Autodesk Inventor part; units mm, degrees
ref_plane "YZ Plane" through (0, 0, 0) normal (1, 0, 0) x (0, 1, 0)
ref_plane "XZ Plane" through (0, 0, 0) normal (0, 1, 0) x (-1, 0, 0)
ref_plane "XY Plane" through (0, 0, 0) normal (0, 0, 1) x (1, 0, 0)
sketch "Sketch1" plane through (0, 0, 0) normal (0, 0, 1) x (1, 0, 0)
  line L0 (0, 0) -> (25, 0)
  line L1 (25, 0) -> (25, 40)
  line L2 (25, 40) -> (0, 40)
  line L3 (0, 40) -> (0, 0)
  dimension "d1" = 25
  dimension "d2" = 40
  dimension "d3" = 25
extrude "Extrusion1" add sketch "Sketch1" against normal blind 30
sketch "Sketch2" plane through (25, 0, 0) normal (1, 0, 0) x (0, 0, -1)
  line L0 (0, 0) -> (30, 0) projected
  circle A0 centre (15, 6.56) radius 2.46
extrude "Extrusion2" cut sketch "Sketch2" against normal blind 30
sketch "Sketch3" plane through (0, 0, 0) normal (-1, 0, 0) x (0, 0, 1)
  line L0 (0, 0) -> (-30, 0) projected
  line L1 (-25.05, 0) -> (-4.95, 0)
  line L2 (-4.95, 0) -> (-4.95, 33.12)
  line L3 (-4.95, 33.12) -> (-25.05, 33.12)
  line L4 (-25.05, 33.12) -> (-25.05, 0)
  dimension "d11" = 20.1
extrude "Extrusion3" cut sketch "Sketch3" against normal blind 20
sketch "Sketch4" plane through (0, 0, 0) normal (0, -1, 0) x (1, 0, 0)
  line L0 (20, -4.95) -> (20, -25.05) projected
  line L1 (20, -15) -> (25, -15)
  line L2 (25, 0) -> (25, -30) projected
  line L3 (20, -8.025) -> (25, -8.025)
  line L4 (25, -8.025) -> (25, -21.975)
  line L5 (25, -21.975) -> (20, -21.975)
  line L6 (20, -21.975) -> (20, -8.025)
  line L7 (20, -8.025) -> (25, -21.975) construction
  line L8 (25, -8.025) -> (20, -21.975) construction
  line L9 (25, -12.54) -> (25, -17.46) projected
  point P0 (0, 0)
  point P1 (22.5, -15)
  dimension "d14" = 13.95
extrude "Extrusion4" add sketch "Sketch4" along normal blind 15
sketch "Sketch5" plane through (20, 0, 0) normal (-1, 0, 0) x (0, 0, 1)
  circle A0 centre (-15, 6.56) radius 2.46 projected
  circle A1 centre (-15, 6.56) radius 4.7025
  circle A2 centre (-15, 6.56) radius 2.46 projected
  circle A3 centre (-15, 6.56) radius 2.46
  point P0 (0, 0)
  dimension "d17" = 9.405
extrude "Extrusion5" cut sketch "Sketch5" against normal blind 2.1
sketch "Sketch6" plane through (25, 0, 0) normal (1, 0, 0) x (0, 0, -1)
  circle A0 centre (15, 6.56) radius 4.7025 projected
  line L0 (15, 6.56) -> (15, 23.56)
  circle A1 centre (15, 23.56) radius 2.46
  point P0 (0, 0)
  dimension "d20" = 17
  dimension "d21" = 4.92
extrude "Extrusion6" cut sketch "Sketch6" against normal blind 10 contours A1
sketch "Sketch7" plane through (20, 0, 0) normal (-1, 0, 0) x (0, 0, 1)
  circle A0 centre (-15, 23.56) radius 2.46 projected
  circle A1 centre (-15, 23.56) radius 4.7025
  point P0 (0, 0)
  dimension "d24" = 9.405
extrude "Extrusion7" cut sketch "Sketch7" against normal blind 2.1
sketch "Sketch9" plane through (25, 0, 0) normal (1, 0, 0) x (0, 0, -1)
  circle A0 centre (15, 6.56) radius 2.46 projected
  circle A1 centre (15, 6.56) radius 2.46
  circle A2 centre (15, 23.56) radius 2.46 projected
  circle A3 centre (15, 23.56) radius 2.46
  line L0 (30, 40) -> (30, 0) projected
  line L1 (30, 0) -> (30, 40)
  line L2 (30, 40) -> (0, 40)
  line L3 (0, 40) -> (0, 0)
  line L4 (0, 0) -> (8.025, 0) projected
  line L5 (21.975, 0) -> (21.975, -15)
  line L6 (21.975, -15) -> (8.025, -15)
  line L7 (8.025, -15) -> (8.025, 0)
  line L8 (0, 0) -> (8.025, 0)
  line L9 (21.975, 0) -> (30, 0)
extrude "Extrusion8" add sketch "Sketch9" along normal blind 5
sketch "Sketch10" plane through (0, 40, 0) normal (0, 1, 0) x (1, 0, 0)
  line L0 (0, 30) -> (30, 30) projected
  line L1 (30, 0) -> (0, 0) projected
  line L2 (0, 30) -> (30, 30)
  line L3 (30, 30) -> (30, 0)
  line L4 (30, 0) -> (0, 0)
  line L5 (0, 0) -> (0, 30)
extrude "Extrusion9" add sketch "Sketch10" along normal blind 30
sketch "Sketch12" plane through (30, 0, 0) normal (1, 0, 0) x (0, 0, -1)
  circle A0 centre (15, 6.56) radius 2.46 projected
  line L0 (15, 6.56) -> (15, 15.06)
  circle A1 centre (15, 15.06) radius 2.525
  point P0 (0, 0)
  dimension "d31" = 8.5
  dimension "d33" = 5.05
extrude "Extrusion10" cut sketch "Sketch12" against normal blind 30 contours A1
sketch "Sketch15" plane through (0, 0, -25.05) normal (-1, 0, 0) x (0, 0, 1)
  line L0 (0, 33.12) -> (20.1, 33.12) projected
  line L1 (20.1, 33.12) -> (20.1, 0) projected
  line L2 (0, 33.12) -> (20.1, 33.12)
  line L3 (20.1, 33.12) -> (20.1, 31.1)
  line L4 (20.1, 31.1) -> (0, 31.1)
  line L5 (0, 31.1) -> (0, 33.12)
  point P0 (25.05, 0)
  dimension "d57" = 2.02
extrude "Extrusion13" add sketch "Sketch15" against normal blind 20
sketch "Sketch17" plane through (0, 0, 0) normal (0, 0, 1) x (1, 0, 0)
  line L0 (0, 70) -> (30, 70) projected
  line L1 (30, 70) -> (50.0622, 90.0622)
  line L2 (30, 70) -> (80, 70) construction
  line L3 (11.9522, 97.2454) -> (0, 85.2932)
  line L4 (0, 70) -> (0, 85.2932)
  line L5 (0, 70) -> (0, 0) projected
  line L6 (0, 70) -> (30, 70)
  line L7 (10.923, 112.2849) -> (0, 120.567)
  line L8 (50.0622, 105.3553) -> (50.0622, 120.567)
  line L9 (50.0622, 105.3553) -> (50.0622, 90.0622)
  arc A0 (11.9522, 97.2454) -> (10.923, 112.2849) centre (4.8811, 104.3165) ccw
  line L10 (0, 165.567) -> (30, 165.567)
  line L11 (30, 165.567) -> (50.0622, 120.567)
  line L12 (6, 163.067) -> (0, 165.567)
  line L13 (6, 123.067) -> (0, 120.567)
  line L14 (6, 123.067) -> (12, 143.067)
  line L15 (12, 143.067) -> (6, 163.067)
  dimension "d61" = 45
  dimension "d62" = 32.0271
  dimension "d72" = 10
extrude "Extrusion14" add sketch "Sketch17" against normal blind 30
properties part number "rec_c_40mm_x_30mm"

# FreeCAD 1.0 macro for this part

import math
import FreeCAD as App
import Part
import Sketcher
Q = App.Units.Quantity


def add_polygon(sketch, points):
    """Adds a closed chain of lines whose ends are joined by coincident constraints."""
    first, n = sketch.GeometryCount, len(points)
    for a, b in zip(points, points[1:] + points[:1]):
        sketch.addGeometry(Part.LineSegment(App.Vector(*a, 0), App.Vector(*b, 0)), False)
    for i in range(n):
        sketch.addConstraint(Sketcher.Constraint("Coincident", first + i, 2, first + (i + 1) % n, 1))

doc = App.newDocument("Part")
body = doc.addObject("PartDesign::Body", "Body")

sketch1 = body.newObject("Sketcher::SketchObject", "Sketch")
sketch1.AttachmentSupport = (doc.getObject("XY_Plane"), [""])
sketch1.MapMode = "FlatFace"
add_polygon(sketch1, [(0, 40), (0, 0), (25, 0), (25, 40)])
sketch1.addConstraint([
    Sketcher.Constraint("Vertical", 0),
    Sketcher.Constraint("Horizontal", 1),
    Sketcher.Constraint("Vertical", 2),
    Sketcher.Constraint("Horizontal", 3),
    Sketcher.Constraint("Coincident", 0, 2, -1, 1),
    Sketcher.Constraint("DistanceX", 1, 1, 1, 2, Q("25 mm")),
    Sketcher.Constraint("DistanceY", 0, 2, 0, 1, Q("40 mm")),
])
pad1 = body.newObject("PartDesign::Pad", "Pad")
pad1.Profile = sketch1
pad1.Length = 30
pad1.Reversed = True

sketch2 = body.newObject("Sketcher::SketchObject", "Sketch001")
sketch2.AttachmentSupport = (doc.getObject("YZ_Plane"), [""])
sketch2.MapMode = "FlatFace"
sketch2.AttachmentOffset = App.Placement(App.Vector(0, 0, 25), App.Rotation())
sketch2.addGeometry(Part.Circle(App.Vector(6.56, -15, 0), App.Vector(0, 0, 1), 2.46), False)
sketch2.addConstraint([
    Sketcher.Constraint("Diameter", 0, Q("4.92 mm")),
    Sketcher.Constraint("DistanceY", 0, 3, -1, 1, Q("15 mm")),
    Sketcher.Constraint("DistanceX", -1, 1, 0, 3, Q("6.56 mm")),
])
pocket1 = body.newObject("PartDesign::Pocket", "Pocket")
pocket1.Profile = sketch2
pocket1.Length = 30

sketch3 = body.newObject("Sketcher::SketchObject", "Sketch002")
sketch3.AttachmentSupport = (doc.getObject("YZ_Plane"), [""])
sketch3.MapMode = "FlatFace"
add_polygon(sketch3, [(0, -25.05), (0, -4.95), (33.12, -4.95), (33.12, -25.05)])
sketch3.addConstraint([
    Sketcher.Constraint("Vertical", 0),
    Sketcher.Constraint("Horizontal", 1),
    Sketcher.Constraint("Vertical", 2),
    Sketcher.Constraint("Horizontal", 3),
    Sketcher.Constraint("PointOnObject", 0, 2, -2),
    Sketcher.Constraint("DistanceY", 0, 1, 0, 2, Q("20.1 mm")),
    Sketcher.Constraint("DistanceX", 1, 1, 1, 2, Q("33.12 mm")),
    Sketcher.Constraint("DistanceY", 0, 2, -1, 1, Q("4.95 mm")),
])
pocket2 = body.newObject("PartDesign::Pocket", "Pocket001")
pocket2.Profile = sketch3
pocket2.Length = 20
pocket2.Reversed = True

sketch4 = body.newObject("Sketcher::SketchObject", "Sketch003")
sketch4.AttachmentSupport = (doc.getObject("XZ_Plane"), [""])
sketch4.MapMode = "FlatFace"
add_polygon(sketch4, [(25, -8.025), (20, -8.025), (20, -21.975), (25, -21.975)])
sketch4.addConstraint([
    Sketcher.Constraint("Horizontal", 0),
    Sketcher.Constraint("Vertical", 1),
    Sketcher.Constraint("Horizontal", 2),
    Sketcher.Constraint("Vertical", 3),
    Sketcher.Constraint("DistanceY", 1, 2, 1, 1, Q("13.95 mm")),
    Sketcher.Constraint("DistanceX", 0, 2, 0, 1, Q("5 mm")),
    Sketcher.Constraint("DistanceX", -1, 1, 0, 2, Q("20 mm")),
    Sketcher.Constraint("DistanceY", 0, 2, -1, 1, Q("8.025 mm")),
])
pad2 = body.newObject("PartDesign::Pad", "Pad001")
pad2.Profile = sketch4
pad2.Length = 15

sketch5 = body.newObject("Sketcher::SketchObject", "Sketch004")
sketch5.AttachmentSupport = (doc.getObject("YZ_Plane"), [""])
sketch5.MapMode = "FlatFace"
sketch5.AttachmentOffset = App.Placement(App.Vector(0, 0, 20), App.Rotation())
sketch5.addGeometry([
    Part.Circle(App.Vector(6.56, -15, 0), App.Vector(0, 0, 1), 4.7025),
    Part.Circle(App.Vector(6.56, -15, 0), App.Vector(0, 0, 1), 2.46),
], False)
sketch5.addConstraint([
    Sketcher.Constraint("Coincident", 1, 3, 0, 3),
    Sketcher.Constraint("Diameter", 0, Q("9.405 mm")),
    Sketcher.Constraint("Diameter", 1, Q("4.92 mm")),
    Sketcher.Constraint("DistanceY", 0, 3, -1, 1, Q("15 mm")),
    Sketcher.Constraint("DistanceX", -1, 1, 0, 3, Q("6.56 mm")),
])
pocket3 = body.newObject("PartDesign::Pocket", "Pocket002")
pocket3.Profile = sketch5
pocket3.Length = 2.1
pocket3.Reversed = True

sketch6 = body.newObject("Sketcher::SketchObject", "Sketch005")
sketch6.AttachmentSupport = (doc.getObject("YZ_Plane"), [""])
sketch6.MapMode = "FlatFace"
sketch6.AttachmentOffset = App.Placement(App.Vector(0, 0, 25), App.Rotation())
sketch6.addGeometry(Part.Circle(App.Vector(23.56, -15, 0), App.Vector(0, 0, 1), 2.46), False)
sketch6.addConstraint([
    Sketcher.Constraint("Diameter", 0, Q("4.92 mm")),
    Sketcher.Constraint("DistanceY", 0, 3, -1, 1, Q("15 mm")),
    Sketcher.Constraint("DistanceX", -1, 1, 0, 3, Q("23.56 mm")),
])
pocket4 = body.newObject("PartDesign::Pocket", "Pocket003")
pocket4.Profile = sketch6
pocket4.Length = 10

sketch7 = body.newObject("Sketcher::SketchObject", "Sketch006")
sketch7.AttachmentSupport = (doc.getObject("YZ_Plane"), [""])
sketch7.MapMode = "FlatFace"
sketch7.AttachmentOffset = App.Placement(App.Vector(0, 0, 20), App.Rotation())
sketch7.addGeometry([
    Part.Circle(App.Vector(23.56, -15, 0), App.Vector(0, 0, 1), 4.7025),
    Part.Circle(App.Vector(23.56, -15, 0), App.Vector(0, 0, 1), 2.46),
], False)
sketch7.addConstraint([
    Sketcher.Constraint("Coincident", 1, 3, 0, 3),
    Sketcher.Constraint("Diameter", 0, Q("9.405 mm")),
    Sketcher.Constraint("Diameter", 1, Q("4.92 mm")),
    Sketcher.Constraint("DistanceY", 0, 3, -1, 1, Q("15 mm")),
    Sketcher.Constraint("DistanceX", -1, 1, 0, 3, Q("23.56 mm")),
])
pocket5 = body.newObject("PartDesign::Pocket", "Pocket004")
pocket5.Profile = sketch7
pocket5.Length = 2.1
pocket5.Reversed = True

sketch8 = body.newObject("Sketcher::SketchObject", "Sketch007")
sketch8.AttachmentSupport = (doc.getObject("YZ_Plane"), [""])
sketch8.MapMode = "FlatFace"
sketch8.AttachmentOffset = App.Placement(App.Vector(0, 0, 25), App.Rotation())
add_polygon(sketch8, [(0, -30), (40, -30), (40, 0), (0, 0), (0, -8.025), (-15, -8.025), (-15, -21.975), (0, -21.975)])
sketch8.addGeometry(Part.Circle(App.Vector(6.56, -15, 0), App.Vector(0, 0, 1), 2.46), False)
sketch8.addGeometry(Part.Circle(App.Vector(23.56, -15, 0), App.Vector(0, 0, 1), 2.46), False)
sketch8.addConstraint([
    Sketcher.Constraint("Horizontal", 0),
    Sketcher.Constraint("Vertical", 1),
    Sketcher.Constraint("Horizontal", 2),
    Sketcher.Constraint("Vertical", 3),
    Sketcher.Constraint("Horizontal", 4),
    Sketcher.Constraint("Vertical", 5),
    Sketcher.Constraint("Horizontal", 6),
    Sketcher.Constraint("Vertical", 7),
    Sketcher.Constraint("Coincident", 2, 2, -1, 1),
    Sketcher.Constraint("Equal", 8, 9),
    Sketcher.Constraint("PointOnObject", 6, 2, -2),
    Sketcher.Constraint("Horizontal", 8, 3, 9, 3),
    Sketcher.Constraint("Equal", 3, 7),
    Sketcher.Constraint("Diameter", 8, Q("4.92 mm")),
    Sketcher.Constraint("DistanceX", 0, 1, 0, 2, Q("40 mm")),
    Sketcher.Constraint("DistanceX", 4, 2, 4, 1, Q("15 mm")),
    Sketcher.Constraint("DistanceY", 1, 1, 1, 2, Q("30 mm")),
    Sketcher.Constraint("DistanceY", 8, 3, -1, 1, Q("15 mm")),
    Sketcher.Constraint("DistanceX", 8, 3, 9, 3, Q("17 mm")),
    Sketcher.Constraint("DistanceY", 5, 2, 5, 1, Q("13.95 mm")),
    Sketcher.Constraint("DistanceX", -1, 1, 8, 3, Q("6.56 mm")),
])
pad3 = body.newObject("PartDesign::Pad", "Pad002")
pad3.Profile = sketch8
pad3.Length = 5

sketch9 = body.newObject("Sketcher::SketchObject", "Sketch008")
sketch9.AttachmentSupport = (doc.getObject("XZ_Plane"), [""])
sketch9.MapMode = "FlatFace"
sketch9.AttachmentOffset = App.Placement(App.Vector(0, 0, -40), App.Rotation())
add_polygon(sketch9, [(30, -30), (0, -30), (0, 0), (30, 0)])
sketch9.addConstraint([
    Sketcher.Constraint("Horizontal", 0),
    Sketcher.Constraint("Vertical", 1),
    Sketcher.Constraint("Horizontal", 2),
    Sketcher.Constraint("Vertical", 3),
    Sketcher.Constraint("Coincident", 1, 2, -1, 1),
    Sketcher.Constraint("Equal", 2, 1),
    Sketcher.Constraint("DistanceX", 0, 2, 0, 1, Q("30 mm")),
])
pad4 = body.newObject("PartDesign::Pad", "Pad003")
pad4.Profile = sketch9
pad4.Length = 30
pad4.Reversed = True

sketch10 = body.newObject("Sketcher::SketchObject", "Sketch009")
sketch10.AttachmentSupport = (doc.getObject("YZ_Plane"), [""])
sketch10.MapMode = "FlatFace"
sketch10.AttachmentOffset = App.Placement(App.Vector(0, 0, 30), App.Rotation())
sketch10.addGeometry(Part.Circle(App.Vector(15.06, -15, 0), App.Vector(0, 0, 1), 2.525), False)
sketch10.addConstraint([
    Sketcher.Constraint("Diameter", 0, Q("5.05 mm")),
    Sketcher.Constraint("DistanceY", 0, 3, -1, 1, Q("15 mm")),
    Sketcher.Constraint("DistanceX", -1, 1, 0, 3, Q("15.06 mm")),
])
pocket6 = body.newObject("PartDesign::Pocket", "Pocket005")
pocket6.Profile = sketch10
pocket6.Length = 30

sketch11 = body.newObject("Sketcher::SketchObject", "Sketch010")
sketch11.AttachmentSupport = (doc.getObject("YZ_Plane"), [""])
sketch11.MapMode = "FlatFace"
add_polygon(sketch11, [(33.12, -4.95), (33.12, -25.05), (31.1, -25.05), (31.1, -4.95)])
sketch11.addConstraint([
    Sketcher.Constraint("Vertical", 0),
    Sketcher.Constraint("Horizontal", 1),
    Sketcher.Constraint("Vertical", 2),
    Sketcher.Constraint("Horizontal", 3),
    Sketcher.Constraint("DistanceX", 1, 2, 1, 1, Q("2.02 mm")),
    Sketcher.Constraint("DistanceY", 0, 2, 0, 1, Q("20.1 mm")),
    Sketcher.Constraint("DistanceX", -1, 1, 1, 2, Q("31.1 mm")),
    Sketcher.Constraint("DistanceY", 0, 2, -1, 1, Q("25.05 mm")),
])
pad5 = body.newObject("PartDesign::Pad", "Pad004")
pad5.Profile = sketch11
pad5.Length = 20

sketch12 = body.newObject("Sketcher::SketchObject", "Sketch011")
sketch12.AttachmentSupport = (doc.getObject("XY_Plane"), [""])
sketch12.MapMode = "FlatFace"
sketch12.addGeometry([
    Part.LineSegment(App.Vector(0, 85.2932, 0), App.Vector(0, 70, 0)),
    Part.LineSegment(App.Vector(0, 70, 0), App.Vector(30, 70, 0)),
    Part.LineSegment(App.Vector(30, 70, 0), App.Vector(50.0622, 90.0622, 0)),
    Part.LineSegment(App.Vector(50.0622, 90.0622, 0), App.Vector(50.0622, 120.567, 0)),
    Part.LineSegment(App.Vector(50.0622, 120.567, 0), App.Vector(30, 165.567, 0)),
    Part.LineSegment(App.Vector(30, 165.567, 0), App.Vector(0, 165.567, 0)),
    Part.LineSegment(App.Vector(0, 165.567, 0), App.Vector(6, 163.067, 0)),
    Part.LineSegment(App.Vector(6, 163.067, 0), App.Vector(12, 143.067, 0)),
    Part.LineSegment(App.Vector(12, 143.067, 0), App.Vector(6, 123.067, 0)),
    Part.LineSegment(App.Vector(6, 123.067, 0), App.Vector(0, 120.567, 0)),
    Part.LineSegment(App.Vector(0, 120.567, 0), App.Vector(10.923, 112.2849, 0)),
    Part.ArcOfCircle(Part.Circle(App.Vector(4.8811, 104.3165, 0), App.Vector(0, 0, 1), 10.000046), math.radians(-45), math.radians(52.829413)),
    Part.LineSegment(App.Vector(11.9522, 97.2454, 0), App.Vector(0, 85.2932, 0)),
], False)
sketch12.addConstraint([
    Sketcher.Constraint("Coincident", 0, 2, 1, 1),
    Sketcher.Constraint("Coincident", 1, 2, 2, 1),
    Sketcher.Constraint("Coincident", 2, 2, 3, 1),
    Sketcher.Constraint("Coincident", 3, 2, 4, 1),
    Sketcher.Constraint("Coincident", 4, 2, 5, 1),
    Sketcher.Constraint("Coincident", 5, 2, 6, 1),
    Sketcher.Constraint("Coincident", 6, 2, 7, 1),
    Sketcher.Constraint("Coincident", 7, 2, 8, 1),
    Sketcher.Constraint("Coincident", 8, 2, 9, 1),
    Sketcher.Constraint("Coincident", 9, 2, 10, 1),
    Sketcher.Constraint("Tangent", 10, 2, 11, 2),
    Sketcher.Constraint("Tangent", 11, 1, 12, 1),
    Sketcher.Constraint("Coincident", 12, 2, 0, 1),
    Sketcher.Constraint("Vertical", 0),
    Sketcher.Constraint("Horizontal", 1),
    Sketcher.Constraint("Vertical", 3),
    Sketcher.Constraint("Horizontal", 5),
    Sketcher.Constraint("PointOnObject", 0, 2, -2),
    Sketcher.Constraint("PointOnObject", 5, 2, -2),
    Sketcher.Constraint("PointOnObject", 9, 2, -2),
    Sketcher.Constraint("Parallel", 2, 12),
    Sketcher.Constraint("Horizontal", 3, 2, 9, 2),
    Sketcher.Constraint("Vertical", 1, 2, 4, 2),
    Sketcher.Constraint("Vertical", 6, 2, 8, 2),
    Sketcher.Constraint("Equal", 7, 8),
    Sketcher.Constraint("Equal", 6, 9),
    Sketcher.Constraint("Radius", 11, Q("10 mm")),
    Sketcher.Constraint("Angle", 2, Q("45 deg")),
    Sketcher.Constraint("DistanceY", 3, 2, 4, 2, Q("45 mm")),
    Sketcher.Constraint("DistanceX", 1, 1, 1, 2, Q("30 mm")),
    Sketcher.Constraint("DistanceY", -1, 1, 0, 2, Q("70 mm")),
    Sketcher.Constraint("DistanceX", -1, 1, 6, 2, Q("6 mm")),
    Sketcher.Constraint("DistanceX", -1, 1, 7, 2, Q("12 mm")),
    Sketcher.Constraint("Angle", 7, Q("-73.3008 deg")),
    Sketcher.Constraint("Angle", 10, Q("-37.1703 deg")),
    Sketcher.Constraint("Distance", 12, Q("16.903 mm")),
    Sketcher.Constraint("DistanceY", 0, 2, 0, 1, Q("15.2932 mm")),
    Sketcher.Constraint("DistanceY", 3, 1, 3, 2, Q("30.5048 mm")),
])
pad6 = body.newObject("PartDesign::Pad", "Pad005")
pad6.Profile = sketch12
pad6.Length = 30
pad6.Reversed = True

doc.recompute()
